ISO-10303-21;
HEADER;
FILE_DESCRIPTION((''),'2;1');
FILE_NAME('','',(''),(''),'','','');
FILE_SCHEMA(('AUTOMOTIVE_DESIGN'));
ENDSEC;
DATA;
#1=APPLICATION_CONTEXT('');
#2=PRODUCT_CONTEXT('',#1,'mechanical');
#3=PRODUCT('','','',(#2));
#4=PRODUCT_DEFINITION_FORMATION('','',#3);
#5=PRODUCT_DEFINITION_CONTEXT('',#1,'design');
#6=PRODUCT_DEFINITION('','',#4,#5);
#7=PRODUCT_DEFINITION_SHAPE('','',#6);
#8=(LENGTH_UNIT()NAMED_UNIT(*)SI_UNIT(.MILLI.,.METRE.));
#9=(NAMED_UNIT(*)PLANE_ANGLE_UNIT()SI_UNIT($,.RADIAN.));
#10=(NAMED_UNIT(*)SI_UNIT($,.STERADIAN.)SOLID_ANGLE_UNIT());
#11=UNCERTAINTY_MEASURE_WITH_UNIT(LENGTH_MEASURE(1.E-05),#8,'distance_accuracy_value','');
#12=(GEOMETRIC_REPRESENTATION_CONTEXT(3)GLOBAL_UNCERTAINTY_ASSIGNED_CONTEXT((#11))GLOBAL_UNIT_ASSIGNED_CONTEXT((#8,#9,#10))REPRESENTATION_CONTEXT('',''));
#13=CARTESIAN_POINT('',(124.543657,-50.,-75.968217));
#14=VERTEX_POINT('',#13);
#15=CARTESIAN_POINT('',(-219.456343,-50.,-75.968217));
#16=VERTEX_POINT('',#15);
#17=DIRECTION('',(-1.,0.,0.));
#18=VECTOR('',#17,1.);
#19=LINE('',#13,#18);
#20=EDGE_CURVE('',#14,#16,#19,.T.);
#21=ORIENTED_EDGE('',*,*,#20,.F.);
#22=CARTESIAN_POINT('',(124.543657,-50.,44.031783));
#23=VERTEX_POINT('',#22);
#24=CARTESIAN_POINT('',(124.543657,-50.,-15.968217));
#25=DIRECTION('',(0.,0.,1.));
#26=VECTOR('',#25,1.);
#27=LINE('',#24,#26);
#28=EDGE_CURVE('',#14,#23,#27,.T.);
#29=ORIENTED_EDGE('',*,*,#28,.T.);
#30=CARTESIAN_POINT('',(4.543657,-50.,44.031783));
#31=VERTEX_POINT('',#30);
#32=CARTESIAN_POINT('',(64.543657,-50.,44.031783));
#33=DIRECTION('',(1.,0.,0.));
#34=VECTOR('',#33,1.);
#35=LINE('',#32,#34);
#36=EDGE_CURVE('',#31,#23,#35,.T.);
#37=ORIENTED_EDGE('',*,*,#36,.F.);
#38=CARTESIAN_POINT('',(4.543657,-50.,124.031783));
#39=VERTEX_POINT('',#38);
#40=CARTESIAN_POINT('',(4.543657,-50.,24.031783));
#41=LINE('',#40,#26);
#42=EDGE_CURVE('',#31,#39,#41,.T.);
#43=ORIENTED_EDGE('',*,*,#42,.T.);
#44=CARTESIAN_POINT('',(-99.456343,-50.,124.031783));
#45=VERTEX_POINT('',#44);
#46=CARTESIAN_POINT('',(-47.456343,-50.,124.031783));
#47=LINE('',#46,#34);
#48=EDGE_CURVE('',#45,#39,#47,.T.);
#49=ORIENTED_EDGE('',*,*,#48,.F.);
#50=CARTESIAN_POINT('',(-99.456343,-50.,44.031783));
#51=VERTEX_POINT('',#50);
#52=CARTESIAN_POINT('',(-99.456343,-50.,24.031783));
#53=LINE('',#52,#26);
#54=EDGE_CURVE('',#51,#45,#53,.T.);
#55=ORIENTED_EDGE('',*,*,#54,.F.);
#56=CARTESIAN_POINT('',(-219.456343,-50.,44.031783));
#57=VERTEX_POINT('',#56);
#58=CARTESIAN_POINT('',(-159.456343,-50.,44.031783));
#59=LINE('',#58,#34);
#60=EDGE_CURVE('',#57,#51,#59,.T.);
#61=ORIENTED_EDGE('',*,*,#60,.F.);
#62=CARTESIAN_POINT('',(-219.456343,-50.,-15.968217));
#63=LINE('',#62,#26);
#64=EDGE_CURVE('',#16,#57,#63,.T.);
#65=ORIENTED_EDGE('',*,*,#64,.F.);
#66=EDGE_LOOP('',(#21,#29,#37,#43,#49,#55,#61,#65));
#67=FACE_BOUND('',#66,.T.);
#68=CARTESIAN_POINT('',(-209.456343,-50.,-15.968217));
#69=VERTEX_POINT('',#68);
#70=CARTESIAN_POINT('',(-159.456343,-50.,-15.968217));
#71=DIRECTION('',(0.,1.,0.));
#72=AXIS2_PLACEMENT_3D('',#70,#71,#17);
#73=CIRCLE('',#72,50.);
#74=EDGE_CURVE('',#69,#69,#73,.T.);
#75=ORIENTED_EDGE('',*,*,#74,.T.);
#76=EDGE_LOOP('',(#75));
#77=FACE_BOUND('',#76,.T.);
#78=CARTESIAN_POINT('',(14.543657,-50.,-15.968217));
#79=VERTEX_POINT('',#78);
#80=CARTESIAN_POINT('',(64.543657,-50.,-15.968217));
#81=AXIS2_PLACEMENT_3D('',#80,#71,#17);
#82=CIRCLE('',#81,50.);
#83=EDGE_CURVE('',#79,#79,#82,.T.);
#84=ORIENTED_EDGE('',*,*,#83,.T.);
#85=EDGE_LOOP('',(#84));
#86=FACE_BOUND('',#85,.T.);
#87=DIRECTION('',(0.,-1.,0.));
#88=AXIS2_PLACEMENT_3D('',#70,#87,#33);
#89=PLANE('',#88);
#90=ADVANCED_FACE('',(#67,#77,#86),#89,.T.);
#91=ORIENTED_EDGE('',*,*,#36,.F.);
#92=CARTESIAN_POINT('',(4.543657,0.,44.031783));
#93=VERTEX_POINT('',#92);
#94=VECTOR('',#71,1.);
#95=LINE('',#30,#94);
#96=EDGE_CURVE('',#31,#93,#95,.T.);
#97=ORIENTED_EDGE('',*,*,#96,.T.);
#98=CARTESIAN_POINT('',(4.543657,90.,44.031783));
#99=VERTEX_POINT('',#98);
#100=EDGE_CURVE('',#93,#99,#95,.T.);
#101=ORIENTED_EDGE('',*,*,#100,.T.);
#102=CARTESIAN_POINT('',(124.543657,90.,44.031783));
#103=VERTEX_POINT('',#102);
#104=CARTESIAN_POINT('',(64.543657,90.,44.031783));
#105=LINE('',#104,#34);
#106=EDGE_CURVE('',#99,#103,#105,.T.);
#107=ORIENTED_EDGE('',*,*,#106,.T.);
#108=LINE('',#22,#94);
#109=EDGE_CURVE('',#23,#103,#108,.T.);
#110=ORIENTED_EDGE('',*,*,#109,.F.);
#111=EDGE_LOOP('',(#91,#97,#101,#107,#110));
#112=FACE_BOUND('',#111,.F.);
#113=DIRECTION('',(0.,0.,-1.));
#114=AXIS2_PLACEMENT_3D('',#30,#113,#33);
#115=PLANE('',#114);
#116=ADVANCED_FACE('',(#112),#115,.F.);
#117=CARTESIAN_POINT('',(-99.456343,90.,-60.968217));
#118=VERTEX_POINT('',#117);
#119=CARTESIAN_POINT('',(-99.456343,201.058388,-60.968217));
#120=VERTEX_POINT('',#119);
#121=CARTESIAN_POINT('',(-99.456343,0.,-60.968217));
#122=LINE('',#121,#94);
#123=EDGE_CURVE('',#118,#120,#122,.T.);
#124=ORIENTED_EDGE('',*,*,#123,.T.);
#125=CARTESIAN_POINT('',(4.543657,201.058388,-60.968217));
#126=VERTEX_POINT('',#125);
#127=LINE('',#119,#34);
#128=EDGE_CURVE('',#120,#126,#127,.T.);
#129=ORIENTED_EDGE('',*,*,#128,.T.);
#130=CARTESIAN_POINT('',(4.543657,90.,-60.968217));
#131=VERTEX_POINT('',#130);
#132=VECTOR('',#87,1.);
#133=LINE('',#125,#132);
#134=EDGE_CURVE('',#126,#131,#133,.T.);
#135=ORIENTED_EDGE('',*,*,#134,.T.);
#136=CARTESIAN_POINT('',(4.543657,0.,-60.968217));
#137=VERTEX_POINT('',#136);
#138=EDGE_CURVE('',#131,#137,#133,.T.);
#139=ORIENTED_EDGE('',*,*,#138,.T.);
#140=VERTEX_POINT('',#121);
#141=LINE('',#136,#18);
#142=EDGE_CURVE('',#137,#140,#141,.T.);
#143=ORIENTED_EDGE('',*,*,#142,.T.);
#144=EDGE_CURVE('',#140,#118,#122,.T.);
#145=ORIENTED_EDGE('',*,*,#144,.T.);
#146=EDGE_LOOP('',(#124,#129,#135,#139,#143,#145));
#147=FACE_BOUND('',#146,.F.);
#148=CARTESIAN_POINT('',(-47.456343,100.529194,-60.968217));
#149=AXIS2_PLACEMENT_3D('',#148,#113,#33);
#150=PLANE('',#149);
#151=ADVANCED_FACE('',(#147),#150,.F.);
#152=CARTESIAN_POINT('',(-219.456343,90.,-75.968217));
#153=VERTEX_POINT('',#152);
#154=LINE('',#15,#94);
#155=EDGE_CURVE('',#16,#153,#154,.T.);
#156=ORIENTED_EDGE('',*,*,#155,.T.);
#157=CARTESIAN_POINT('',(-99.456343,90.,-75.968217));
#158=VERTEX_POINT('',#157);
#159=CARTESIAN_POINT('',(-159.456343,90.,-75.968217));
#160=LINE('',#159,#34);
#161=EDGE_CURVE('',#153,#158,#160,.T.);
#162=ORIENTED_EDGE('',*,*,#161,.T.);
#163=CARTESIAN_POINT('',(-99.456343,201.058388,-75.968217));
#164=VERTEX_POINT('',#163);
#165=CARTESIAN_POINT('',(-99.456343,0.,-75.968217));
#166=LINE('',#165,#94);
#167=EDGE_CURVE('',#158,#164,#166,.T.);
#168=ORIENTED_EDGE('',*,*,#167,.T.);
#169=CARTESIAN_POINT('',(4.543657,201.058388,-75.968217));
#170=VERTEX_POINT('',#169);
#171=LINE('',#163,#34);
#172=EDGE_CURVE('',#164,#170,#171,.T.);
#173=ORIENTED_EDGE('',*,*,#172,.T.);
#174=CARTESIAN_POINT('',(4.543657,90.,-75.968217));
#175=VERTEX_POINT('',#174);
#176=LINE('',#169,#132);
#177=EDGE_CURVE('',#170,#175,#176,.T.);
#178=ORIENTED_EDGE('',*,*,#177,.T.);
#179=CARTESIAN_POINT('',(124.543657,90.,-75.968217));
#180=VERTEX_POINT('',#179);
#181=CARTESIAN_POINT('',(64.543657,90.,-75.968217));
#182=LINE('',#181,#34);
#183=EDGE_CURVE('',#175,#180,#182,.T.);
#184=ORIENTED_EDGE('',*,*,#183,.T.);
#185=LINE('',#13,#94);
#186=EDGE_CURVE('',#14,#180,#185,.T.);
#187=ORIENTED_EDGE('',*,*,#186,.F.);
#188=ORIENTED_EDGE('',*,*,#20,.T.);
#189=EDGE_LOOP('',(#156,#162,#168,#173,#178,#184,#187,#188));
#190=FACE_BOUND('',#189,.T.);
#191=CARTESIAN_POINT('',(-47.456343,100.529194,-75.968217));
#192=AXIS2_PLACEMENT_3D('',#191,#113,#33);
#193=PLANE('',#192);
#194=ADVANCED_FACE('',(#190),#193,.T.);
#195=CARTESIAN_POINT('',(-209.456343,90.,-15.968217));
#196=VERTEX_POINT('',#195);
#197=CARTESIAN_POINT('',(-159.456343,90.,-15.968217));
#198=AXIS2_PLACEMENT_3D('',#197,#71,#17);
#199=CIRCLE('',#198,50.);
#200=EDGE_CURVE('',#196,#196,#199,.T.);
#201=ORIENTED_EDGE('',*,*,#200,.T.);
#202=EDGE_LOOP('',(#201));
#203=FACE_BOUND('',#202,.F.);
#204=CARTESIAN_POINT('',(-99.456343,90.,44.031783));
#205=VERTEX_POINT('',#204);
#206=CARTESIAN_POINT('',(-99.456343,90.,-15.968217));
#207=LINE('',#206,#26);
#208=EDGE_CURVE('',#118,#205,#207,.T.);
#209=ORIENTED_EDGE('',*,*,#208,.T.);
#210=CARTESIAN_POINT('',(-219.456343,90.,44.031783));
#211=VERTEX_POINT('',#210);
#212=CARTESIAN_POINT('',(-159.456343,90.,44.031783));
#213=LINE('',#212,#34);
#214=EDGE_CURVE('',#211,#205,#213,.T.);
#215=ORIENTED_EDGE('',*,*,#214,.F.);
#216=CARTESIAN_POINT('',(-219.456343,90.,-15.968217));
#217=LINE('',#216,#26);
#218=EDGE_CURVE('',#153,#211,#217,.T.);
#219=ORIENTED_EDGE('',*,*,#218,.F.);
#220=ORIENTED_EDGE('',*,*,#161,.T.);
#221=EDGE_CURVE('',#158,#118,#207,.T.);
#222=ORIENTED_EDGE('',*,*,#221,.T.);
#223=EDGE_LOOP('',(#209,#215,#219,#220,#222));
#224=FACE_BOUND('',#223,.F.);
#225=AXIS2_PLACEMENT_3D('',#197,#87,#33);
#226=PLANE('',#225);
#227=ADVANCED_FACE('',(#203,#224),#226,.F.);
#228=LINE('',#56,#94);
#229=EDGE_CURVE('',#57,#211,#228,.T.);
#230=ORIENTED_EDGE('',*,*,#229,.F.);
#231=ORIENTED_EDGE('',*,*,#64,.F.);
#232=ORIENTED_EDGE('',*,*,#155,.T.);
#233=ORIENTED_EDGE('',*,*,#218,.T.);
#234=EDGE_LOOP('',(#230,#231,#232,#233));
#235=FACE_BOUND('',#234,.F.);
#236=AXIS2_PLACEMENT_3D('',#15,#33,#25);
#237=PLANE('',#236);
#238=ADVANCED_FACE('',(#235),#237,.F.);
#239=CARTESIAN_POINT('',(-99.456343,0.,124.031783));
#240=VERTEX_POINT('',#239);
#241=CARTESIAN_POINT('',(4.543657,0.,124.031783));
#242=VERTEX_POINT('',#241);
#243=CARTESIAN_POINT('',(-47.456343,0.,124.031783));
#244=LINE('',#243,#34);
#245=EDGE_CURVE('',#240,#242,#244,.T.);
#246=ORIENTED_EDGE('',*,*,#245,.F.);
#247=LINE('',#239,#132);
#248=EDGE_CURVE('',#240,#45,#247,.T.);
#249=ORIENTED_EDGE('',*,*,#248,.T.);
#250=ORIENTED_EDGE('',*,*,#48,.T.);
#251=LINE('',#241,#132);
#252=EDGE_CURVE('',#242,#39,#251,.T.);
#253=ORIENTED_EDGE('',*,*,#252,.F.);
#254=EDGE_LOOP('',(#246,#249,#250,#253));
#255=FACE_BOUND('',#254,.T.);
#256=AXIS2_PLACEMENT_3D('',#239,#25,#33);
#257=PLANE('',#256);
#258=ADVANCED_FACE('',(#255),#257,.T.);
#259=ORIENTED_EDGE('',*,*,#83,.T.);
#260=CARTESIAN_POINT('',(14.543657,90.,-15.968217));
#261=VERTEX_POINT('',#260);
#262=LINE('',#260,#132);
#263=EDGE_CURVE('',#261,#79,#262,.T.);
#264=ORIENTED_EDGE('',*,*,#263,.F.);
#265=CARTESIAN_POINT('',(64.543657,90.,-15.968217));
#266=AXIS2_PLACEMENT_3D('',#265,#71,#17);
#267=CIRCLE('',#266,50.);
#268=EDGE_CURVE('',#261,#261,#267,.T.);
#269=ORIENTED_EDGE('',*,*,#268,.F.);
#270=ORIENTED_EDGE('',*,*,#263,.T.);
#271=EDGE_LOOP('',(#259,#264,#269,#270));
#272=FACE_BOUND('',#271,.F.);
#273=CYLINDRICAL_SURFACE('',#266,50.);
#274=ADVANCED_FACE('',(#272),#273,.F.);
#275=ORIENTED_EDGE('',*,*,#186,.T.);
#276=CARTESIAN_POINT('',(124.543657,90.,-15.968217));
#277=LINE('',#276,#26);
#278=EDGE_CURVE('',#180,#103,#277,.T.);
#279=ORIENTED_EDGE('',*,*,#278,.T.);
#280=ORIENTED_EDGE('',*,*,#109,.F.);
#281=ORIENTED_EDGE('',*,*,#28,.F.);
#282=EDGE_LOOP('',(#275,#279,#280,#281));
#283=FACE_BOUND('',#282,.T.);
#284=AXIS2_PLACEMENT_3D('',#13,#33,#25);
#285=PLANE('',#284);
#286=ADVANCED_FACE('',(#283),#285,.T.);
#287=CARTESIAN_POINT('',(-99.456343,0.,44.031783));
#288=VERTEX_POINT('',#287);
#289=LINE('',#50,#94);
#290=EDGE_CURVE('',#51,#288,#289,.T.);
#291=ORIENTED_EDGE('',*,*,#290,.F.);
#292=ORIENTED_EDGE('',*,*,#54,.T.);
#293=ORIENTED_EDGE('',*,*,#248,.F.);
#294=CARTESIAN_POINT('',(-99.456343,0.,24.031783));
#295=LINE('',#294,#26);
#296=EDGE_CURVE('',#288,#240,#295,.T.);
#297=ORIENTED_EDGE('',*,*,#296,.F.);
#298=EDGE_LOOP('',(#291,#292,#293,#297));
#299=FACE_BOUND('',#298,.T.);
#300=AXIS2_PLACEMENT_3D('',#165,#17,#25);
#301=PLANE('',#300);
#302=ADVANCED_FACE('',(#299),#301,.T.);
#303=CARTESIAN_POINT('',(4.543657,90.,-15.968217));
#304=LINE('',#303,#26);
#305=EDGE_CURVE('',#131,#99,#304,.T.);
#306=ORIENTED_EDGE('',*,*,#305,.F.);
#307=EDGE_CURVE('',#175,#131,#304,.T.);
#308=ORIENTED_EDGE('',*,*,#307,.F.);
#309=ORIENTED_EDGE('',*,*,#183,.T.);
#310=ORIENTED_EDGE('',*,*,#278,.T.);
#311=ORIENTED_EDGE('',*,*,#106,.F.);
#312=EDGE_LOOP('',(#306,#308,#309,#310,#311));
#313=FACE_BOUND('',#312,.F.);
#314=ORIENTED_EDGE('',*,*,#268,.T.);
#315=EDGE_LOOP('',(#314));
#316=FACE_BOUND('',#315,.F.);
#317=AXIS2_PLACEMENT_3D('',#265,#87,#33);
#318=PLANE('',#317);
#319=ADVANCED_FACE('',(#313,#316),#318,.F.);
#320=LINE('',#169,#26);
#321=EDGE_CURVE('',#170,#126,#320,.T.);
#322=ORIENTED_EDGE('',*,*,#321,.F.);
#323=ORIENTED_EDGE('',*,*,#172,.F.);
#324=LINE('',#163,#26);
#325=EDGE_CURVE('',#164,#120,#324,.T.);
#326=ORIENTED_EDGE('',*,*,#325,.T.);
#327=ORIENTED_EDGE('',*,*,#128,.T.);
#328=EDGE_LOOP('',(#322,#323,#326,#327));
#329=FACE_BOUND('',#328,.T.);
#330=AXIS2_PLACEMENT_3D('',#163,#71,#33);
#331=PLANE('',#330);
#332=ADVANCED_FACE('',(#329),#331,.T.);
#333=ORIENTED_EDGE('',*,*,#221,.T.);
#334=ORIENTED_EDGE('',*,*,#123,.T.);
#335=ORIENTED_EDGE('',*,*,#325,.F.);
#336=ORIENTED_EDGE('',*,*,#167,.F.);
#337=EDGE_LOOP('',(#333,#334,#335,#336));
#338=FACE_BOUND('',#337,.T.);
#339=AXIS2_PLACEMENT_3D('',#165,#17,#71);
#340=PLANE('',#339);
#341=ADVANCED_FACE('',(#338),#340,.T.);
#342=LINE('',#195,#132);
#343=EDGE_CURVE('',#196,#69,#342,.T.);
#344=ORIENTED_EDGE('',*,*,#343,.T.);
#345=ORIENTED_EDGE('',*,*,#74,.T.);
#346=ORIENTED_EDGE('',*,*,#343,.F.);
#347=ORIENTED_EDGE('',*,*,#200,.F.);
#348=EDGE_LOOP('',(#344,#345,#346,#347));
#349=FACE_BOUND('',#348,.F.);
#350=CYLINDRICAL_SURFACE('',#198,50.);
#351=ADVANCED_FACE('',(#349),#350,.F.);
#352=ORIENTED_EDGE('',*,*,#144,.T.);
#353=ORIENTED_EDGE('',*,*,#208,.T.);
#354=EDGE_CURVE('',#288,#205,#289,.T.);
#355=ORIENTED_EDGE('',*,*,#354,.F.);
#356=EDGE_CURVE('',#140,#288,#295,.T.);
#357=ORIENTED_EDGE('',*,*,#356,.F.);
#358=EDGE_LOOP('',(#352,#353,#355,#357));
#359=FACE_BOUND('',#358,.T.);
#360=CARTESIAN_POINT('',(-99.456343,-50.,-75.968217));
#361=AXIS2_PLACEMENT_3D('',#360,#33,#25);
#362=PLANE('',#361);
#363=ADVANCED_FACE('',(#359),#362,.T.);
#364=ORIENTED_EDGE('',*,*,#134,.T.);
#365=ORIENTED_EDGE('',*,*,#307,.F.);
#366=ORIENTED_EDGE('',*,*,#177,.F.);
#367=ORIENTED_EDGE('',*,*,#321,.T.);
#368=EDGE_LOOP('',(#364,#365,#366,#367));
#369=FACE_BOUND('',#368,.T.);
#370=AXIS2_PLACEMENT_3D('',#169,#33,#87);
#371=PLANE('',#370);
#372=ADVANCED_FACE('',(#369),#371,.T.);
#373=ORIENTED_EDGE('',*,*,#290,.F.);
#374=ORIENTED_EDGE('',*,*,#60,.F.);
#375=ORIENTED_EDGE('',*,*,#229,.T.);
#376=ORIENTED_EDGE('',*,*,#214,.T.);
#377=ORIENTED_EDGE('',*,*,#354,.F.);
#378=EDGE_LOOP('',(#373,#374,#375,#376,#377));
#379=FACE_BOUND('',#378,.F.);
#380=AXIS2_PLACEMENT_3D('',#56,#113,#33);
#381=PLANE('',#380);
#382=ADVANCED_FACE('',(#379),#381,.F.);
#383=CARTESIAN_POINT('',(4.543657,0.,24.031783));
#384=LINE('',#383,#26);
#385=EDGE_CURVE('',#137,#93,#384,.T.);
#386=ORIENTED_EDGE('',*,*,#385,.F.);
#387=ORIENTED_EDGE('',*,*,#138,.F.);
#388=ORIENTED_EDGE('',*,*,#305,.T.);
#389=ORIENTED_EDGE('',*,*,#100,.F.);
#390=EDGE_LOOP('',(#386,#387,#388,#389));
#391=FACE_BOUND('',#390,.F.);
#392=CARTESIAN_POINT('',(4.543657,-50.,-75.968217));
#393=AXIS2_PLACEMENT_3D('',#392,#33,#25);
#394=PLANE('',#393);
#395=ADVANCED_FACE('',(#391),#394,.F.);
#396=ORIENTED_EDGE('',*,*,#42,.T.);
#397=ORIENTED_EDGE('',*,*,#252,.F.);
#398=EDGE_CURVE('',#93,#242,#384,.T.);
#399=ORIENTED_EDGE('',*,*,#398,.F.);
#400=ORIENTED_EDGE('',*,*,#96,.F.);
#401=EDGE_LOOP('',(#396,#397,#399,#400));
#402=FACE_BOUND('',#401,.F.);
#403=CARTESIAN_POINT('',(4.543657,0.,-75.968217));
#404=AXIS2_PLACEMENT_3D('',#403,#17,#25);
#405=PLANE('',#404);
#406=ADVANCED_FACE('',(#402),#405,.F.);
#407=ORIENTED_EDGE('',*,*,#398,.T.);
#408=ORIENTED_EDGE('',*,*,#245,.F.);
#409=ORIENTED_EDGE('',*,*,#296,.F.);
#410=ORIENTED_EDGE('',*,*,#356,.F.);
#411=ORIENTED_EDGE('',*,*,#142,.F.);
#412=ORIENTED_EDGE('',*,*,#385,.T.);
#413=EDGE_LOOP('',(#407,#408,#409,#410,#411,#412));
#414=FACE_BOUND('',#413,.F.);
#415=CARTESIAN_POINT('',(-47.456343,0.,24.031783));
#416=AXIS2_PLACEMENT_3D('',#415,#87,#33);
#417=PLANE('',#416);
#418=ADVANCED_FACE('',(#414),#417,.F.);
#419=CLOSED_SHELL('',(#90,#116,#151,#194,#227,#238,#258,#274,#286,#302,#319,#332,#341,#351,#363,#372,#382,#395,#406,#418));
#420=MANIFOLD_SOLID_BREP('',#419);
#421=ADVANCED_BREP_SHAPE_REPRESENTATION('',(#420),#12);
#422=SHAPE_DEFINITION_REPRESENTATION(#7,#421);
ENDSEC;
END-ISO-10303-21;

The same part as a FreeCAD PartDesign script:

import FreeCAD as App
import Part
import Sketcher
Q = App.Units.Quantity

doc = App.newDocument("Part")
body = doc.addObject("PartDesign::Body", "Body")

sketch1 = doc.addObject("Sketcher::SketchObject", "Sketch")
body.addObject(sketch1)
sketch1.AttachmentSupport = (doc.XZ_Plane, [""])
sketch1.MapMode = "FlatFace"
sketch1.addGeometry([
    Part.LineSegment(App.Vector(-99.456343, 124.031783, 0), App.Vector(-99.456343, -75.968217, 0)),
    Part.LineSegment(App.Vector(-99.456343, -75.968217, 0), App.Vector(4.543657, -75.968217, 0)),
    Part.LineSegment(App.Vector(4.543657, -75.968217, 0), App.Vector(4.543657, 124.031783, 0)),
    Part.LineSegment(App.Vector(4.543657, 124.031783, 0), App.Vector(-99.456343, 124.031783, 0)),
], False)
sketch1.addConstraint([
    Sketcher.Constraint("Coincident", 0, 2, 1, 1),
    Sketcher.Constraint("Coincident", 1, 2, 2, 1),
    Sketcher.Constraint("Coincident", 2, 2, 3, 1),
    Sketcher.Constraint("Coincident", 3, 2, 0, 1),
    Sketcher.Constraint("Vertical", 0),
    Sketcher.Constraint("Horizontal", 1),
    Sketcher.Constraint("Vertical", 2),
    Sketcher.Constraint("Horizontal", 3),
    Sketcher.Constraint("DistanceX", 1, 1, 1, 2, Q("104 mm")),
    Sketcher.Constraint("DistanceY", 0, 2, 0, 1, Q("200 mm")),
    Sketcher.Constraint("DistanceX", 0, 2, -1, 1, Q("99.456343 mm")),
    Sketcher.Constraint("DistanceY", 0, 2, -1, 1, Q("75.968217 mm")),
])
pad1 = doc.addObject("PartDesign::Pad", "Pad")
body.addObject(pad1)
pad1.Profile = sketch1
pad1.Length = 50

sketch2 = doc.addObject("Sketcher::SketchObject", "Sketch001")
body.addObject(sketch2)
sketch2.AttachmentSupport = (doc.XZ_Plane, [""])
sketch2.MapMode = "FlatFace"
sketch2.AttachmentOffset = App.Placement(App.Vector(0, 0, 50), App.Rotation())
sketch2.addGeometry([
    Part.LineSegment(App.Vector(-219.456343, 44.031783, 0), App.Vector(-219.456343, -75.968217, 0)),
    Part.LineSegment(App.Vector(-219.456343, -75.968217, 0), App.Vector(-99.456343, -75.968217, 0)),
    Part.LineSegment(App.Vector(-99.456343, -75.968217, 0), App.Vector(-99.456343, 44.031783, 0)),
    Part.LineSegment(App.Vector(-99.456343, 44.031783, 0), App.Vector(-219.456343, 44.031783, 0)),
    Part.LineSegment(App.Vector(4.543657, 44.031783, 0), App.Vector(4.543657, -75.968217, 0)),
    Part.LineSegment(App.Vector(4.543657, -75.968217, 0), App.Vector(124.543657, -75.968217, 0)),
    Part.LineSegment(App.Vector(124.543657, -75.968217, 0), App.Vector(124.543657, 44.031783, 0)),
    Part.LineSegment(App.Vector(124.543657, 44.031783, 0), App.Vector(4.543657, 44.031783, 0)),
], False)
sketch2.addConstraint([
    Sketcher.Constraint("Coincident", 0, 2, 1, 1),
    Sketcher.Constraint("Coincident", 1, 2, 2, 1),
    Sketcher.Constraint("Coincident", 2, 2, 3, 1),
    Sketcher.Constraint("Coincident", 3, 2, 0, 1),
    Sketcher.Constraint("Coincident", 4, 2, 5, 1),
    Sketcher.Constraint("Coincident", 5, 2, 6, 1),
    Sketcher.Constraint("Coincident", 6, 2, 7, 1),
    Sketcher.Constraint("Coincident", 7, 2, 4, 1),
    Sketcher.Constraint("Vertical", 0),
    Sketcher.Constraint("Horizontal", 1),
    Sketcher.Constraint("Vertical", 2),
    Sketcher.Constraint("Horizontal", 3),
    Sketcher.Constraint("Vertical", 4),
    Sketcher.Constraint("Horizontal", 5),
    Sketcher.Constraint("Vertical", 6),
    Sketcher.Constraint("Horizontal", 7),
    Sketcher.Constraint("Horizontal", 1, 2, 4, 2),
    Sketcher.Constraint("Horizontal", 3, 2, 6, 2),
    Sketcher.Constraint("Equal", 3, 5),
    Sketcher.Constraint("Equal", 7, 0),
    Sketcher.Constraint("DistanceX", 1, 1, 1, 2, Q("120 mm")),
    Sketcher.Constraint("DistanceX", 1, 2, 4, 2, Q("104 mm")),
    Sketcher.Constraint("DistanceX", 0, 2, -1, 1, Q("219.456343 mm")),
    Sketcher.Constraint("DistanceY", 0, 2, -1, 1, Q("75.968217 mm")),
])
pad2 = doc.addObject("PartDesign::Pad", "Pad001")
body.addObject(pad2)
pad2.Profile = sketch2
pad2.Length = 140
pad2.Reversed = True

sketch3 = doc.addObject("Sketcher::SketchObject", "Sketch002")
body.addObject(sketch3)
sketch3.AttachmentSupport = (doc.XZ_Plane, [""])
sketch3.MapMode = "FlatFace"
sketch3.AttachmentOffset = App.Placement(App.Vector(0, 0, -90), App.Rotation())
sketch3.addGeometry([
    Part.Circle(App.Vector(64.543657, -15.968217, 0), App.Vector(0, 0, 1), 50),
    Part.Circle(App.Vector(-159.456343, -15.968217, 0), App.Vector(0, 0, 1), 50),
], False)
sketch3.addConstraint([
    Sketcher.Constraint("Equal", 0, 1),
    Sketcher.Constraint("Horizontal", 0, 3, 1, 3),
    Sketcher.Constraint("Diameter", 0, Q("100 mm")),
    Sketcher.Constraint("DistanceX", 1, 3, 0, 3, Q("224 mm")),
    Sketcher.Constraint("DistanceX", -1, 1, 0, 3, Q("64.543657 mm")),
    Sketcher.Constraint("DistanceY", 0, 3, -1, 1, Q("15.968217 mm")),
])
pocket1 = doc.addObject("PartDesign::Pocket", "Pocket")
body.addObject(pocket1)
pocket1.Profile = sketch3
pocket1.Type = "ThroughAll"
pocket1.Reversed = True

sketch4 = doc.addObject("Sketcher::SketchObject", "Sketch003")
body.addObject(sketch4)
sketch4.AttachmentSupport = (doc.XY_Plane, [""])
sketch4.MapMode = "FlatFace"
sketch4.AttachmentOffset = App.Placement(App.Vector(0, 0, -75.968217), App.Rotation())
sketch4.addGeometry([
    Part.LineSegment(App.Vector(-99.456343, 0, 0), App.Vector(-99.456343, 201.058388, 0)),
    Part.LineSegment(App.Vector(-99.456343, 201.058388, 0), App.Vector(4.543657, 201.058388, 0)),
    Part.LineSegment(App.Vector(4.543657, 201.058388, 0), App.Vector(4.543657, 0, 0)),
    Part.LineSegment(App.Vector(4.543657, 0, 0), App.Vector(-99.456343, 0, 0)),
], False)
sketch4.addConstraint([
    Sketcher.Constraint("Coincident", 0, 2, 1, 1),
    Sketcher.Constraint("Coincident", 1, 2, 2, 1),
    Sketcher.Constraint("Coincident", 2, 2, 3, 1),
    Sketcher.Constraint("Coincident", 3, 2, 0, 1),
    Sketcher.Constraint("Vertical", 0),
    Sketcher.Constraint("Horizontal", 1),
    Sketcher.Constraint("Vertical", 2),
    Sketcher.Constraint("Horizontal", 3),
    Sketcher.Constraint("PointOnObject", 2, 2, -1),
    Sketcher.Constraint("DistanceX", 1, 1, 1, 2, Q("104 mm")),
    Sketcher.Constraint("DistanceY", 0, 1, 0, 2, Q("201.058388 mm")),
    Sketcher.Constraint("DistanceX", 0, 2, -1, 1, Q("99.456343 mm")),
])
pad3 = doc.addObject("PartDesign::Pad", "Pad002")
body.addObject(pad3)
pad3.Profile = sketch4
pad3.Length = 15

doc.recompute()
